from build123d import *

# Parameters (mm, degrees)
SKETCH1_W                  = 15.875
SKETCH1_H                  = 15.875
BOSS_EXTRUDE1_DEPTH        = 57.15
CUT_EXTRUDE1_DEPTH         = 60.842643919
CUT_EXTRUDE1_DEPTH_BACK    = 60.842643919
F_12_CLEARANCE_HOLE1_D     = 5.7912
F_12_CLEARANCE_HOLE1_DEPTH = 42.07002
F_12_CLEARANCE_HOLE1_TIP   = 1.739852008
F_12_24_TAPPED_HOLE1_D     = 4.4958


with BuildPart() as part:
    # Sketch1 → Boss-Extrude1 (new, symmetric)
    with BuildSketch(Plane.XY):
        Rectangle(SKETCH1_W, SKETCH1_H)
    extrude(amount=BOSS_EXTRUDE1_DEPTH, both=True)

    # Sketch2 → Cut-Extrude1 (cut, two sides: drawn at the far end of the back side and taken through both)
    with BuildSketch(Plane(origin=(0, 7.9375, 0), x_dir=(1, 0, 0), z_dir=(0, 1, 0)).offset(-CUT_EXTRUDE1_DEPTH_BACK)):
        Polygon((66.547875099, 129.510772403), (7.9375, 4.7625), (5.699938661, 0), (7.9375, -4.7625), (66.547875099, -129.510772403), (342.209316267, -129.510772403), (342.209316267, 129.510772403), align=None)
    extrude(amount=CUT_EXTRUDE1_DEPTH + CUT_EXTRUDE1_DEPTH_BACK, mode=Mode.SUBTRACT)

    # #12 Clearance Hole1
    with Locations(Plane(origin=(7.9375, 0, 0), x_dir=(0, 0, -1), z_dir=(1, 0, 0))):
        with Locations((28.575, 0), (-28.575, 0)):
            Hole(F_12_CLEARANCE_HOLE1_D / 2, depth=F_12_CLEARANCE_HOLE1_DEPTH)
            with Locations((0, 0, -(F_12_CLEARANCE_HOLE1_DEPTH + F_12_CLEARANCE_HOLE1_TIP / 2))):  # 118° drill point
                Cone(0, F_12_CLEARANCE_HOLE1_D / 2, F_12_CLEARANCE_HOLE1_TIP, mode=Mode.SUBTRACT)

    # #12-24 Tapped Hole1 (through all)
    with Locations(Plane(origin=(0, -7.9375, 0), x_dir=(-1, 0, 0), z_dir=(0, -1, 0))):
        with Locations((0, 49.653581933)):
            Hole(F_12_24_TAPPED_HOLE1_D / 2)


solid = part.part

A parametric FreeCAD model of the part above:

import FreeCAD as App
import Part
import Sketcher
Q = App.Units.Quantity

doc = App.newDocument("Part")
body = doc.addObject("PartDesign::Body", "Body")

# Sketch on XY plane
sketch1 = body.newObject("Sketcher::SketchObject", "Sketch")
sketch1.AttachmentSupport = (doc.getObject("XY_Plane"), [""])
sketch1.MapMode = "FlatFace"
sketch1.addGeometry([
    Part.LineSegment(App.Vector(-8, 8, 0), App.Vector(-8, -8, 0)),
    Part.LineSegment(App.Vector(-8, -8, 0), App.Vector(8, -8, 0)),
    Part.LineSegment(App.Vector(8, -8, 0), App.Vector(8, 8, 0)),
    Part.LineSegment(App.Vector(8, 8, 0), App.Vector(-8, 8, 0)),
], False)
sketch1.addConstraint([
    Sketcher.Constraint("Coincident", 0, 2, 1, 1),
    Sketcher.Constraint("Coincident", 1, 2, 2, 1),
    Sketcher.Constraint("Coincident", 2, 2, 3, 1),
    Sketcher.Constraint("Coincident", 3, 2, 0, 1),
    Sketcher.Constraint("Vertical", 0),
    Sketcher.Constraint("Horizontal", 1),
    Sketcher.Constraint("Vertical", 2),
    Sketcher.Constraint("Horizontal", 3),
    Sketcher.Constraint("Symmetric", 0, 2, 2, 2, -1, 1),
    Sketcher.Constraint("Equal", 3, 0),
    Sketcher.Constraint("DistanceX", 1, 1, 1, 2, Q("0.625 in")),
])
pad1 = body.newObject("PartDesign::Pad", "Pad")
pad1.Profile = sketch1
pad1.Length = Q("4.5 in")
pad1.Midplane = True

# Sketch on XZ plane
sketch2 = body.newObject("Sketcher::SketchObject", "Sketch001")
sketch2.AttachmentSupport = (doc.getObject("XZ_Plane"), [""])
sketch2.MapMode = "FlatFace"
sketch2.AttachmentOffset = App.Placement(App.Vector(0, 0, -0.3125 * 25.4), App.Rotation())
sketch2.addGeometry([
    Part.LineSegment(App.Vector(67, -130, 0), App.Vector(8, -5, 0)),  # 0
    Part.LineSegment(App.Vector(8, -5, 0), App.Vector(6, 0, 0)),  # 1
    Part.LineSegment(App.Vector(6, 0, 0), App.Vector(8, 5, 0)),  # 2
    Part.LineSegment(App.Vector(8, 5, 0), App.Vector(67, 130, 0)),  # 3
    Part.LineSegment(App.Vector(67, 130, 0), App.Vector(342, 130, 0)),  # 4
    Part.LineSegment(App.Vector(342, 130, 0), App.Vector(342, -130, 0)),  # 5
    Part.LineSegment(App.Vector(342, -130, 0), App.Vector(67, -130, 0)),  # 6
], False)
sketch2.addConstraint([
    Sketcher.Constraint("Coincident", 0, 2, 1, 1),
    Sketcher.Constraint("Coincident", 1, 2, 2, 1),
    Sketcher.Constraint("Coincident", 2, 2, 3, 1),
    Sketcher.Constraint("Coincident", 3, 2, 4, 1),
    Sketcher.Constraint("Coincident", 4, 2, 5, 1),
    Sketcher.Constraint("Coincident", 5, 2, 6, 1),
    Sketcher.Constraint("Coincident", 6, 2, 0, 1),
    Sketcher.Constraint("Horizontal", 4),
    Sketcher.Constraint("Vertical", 5),
    Sketcher.Constraint("Horizontal", 6),
    Sketcher.Constraint("Symmetric", 0, 2, 2, 2, -1),
    Sketcher.Constraint("Symmetric", 3, 2, 6, 2, -1),
    Sketcher.Constraint("PointOnObject", 1, 2, -1),
    Sketcher.Constraint("Parallel", 0, 1),
    Sketcher.Constraint("DistanceX", -1, 1, 0, 2, Q("0.3125 in")),
    Sketcher.Constraint("DistanceY", 0, 2, -1, 1, Q("0.1875 in")),
    Sketcher.Constraint("DistanceX", 4, 1, 4, 2, 275.661441),
    Sketcher.Constraint("Distance", 0, 137.830721),
    Sketcher.Constraint("DistanceY", 5, 2, 5, 1, 259.021545),
])
pocket1 = body.newObject("PartDesign::Pocket", "Pocket")
pocket1.Profile = sketch2
pocket1.Type = "ThroughAll"
pocket1.Midplane = True

# Sketch on YZ plane
sketch3 = body.newObject("Sketcher::SketchObject", "Sketch002")
sketch3.AttachmentSupport = (doc.getObject("YZ_Plane"), [""])
sketch3.MapMode = "FlatFace"
sketch3.AttachmentOffset = App.Placement(App.Vector(0, 0, 0.3125 * 25.4), App.Rotation())
sketch3.addGeometry([
    Part.Circle(App.Vector(0, -28.6, 0), App.Vector(0, 0, 1), 2.9),
    Part.Circle(App.Vector(0, 28.6, 0), App.Vector(0, 0, 1), 2.9),
], False)
sketch3.addConstraint([
    Sketcher.Constraint("Equal", 0, 1),
    Sketcher.Constraint("Symmetric", 0, 3, 1, 3, -1, 1),
    Sketcher.Constraint("PointOnObject", 0, 3, -2),
    Sketcher.Constraint("Diameter", 0, Q("0.228 in")),
    Sketcher.Constraint("DistanceY", 0, 3, 1, 3, Q("2.25 in")),
])
doc.recompute()
hole = body.newObject("PartDesign::Hole", "Hole")
hole.Profile = sketch3
hole.ThreadType = "None"
hole.Diameter = Q("0.228 in")
hole.DepthType = "Dimension"
hole.Depth = Q("1.6563 in")
hole.DrillPoint = "Angled"
hole.DrillPointAngle = 118

# Sketch on XZ plane
sketch4 = body.newObject("Sketcher::SketchObject", "Sketch003")
sketch4.AttachmentSupport = (doc.getObject("XZ_Plane"), [""])
sketch4.MapMode = "FlatFace"
sketch4.AttachmentOffset = App.Placement(App.Vector(0, 0, 0.3125 * 25.4), App.Rotation())
sketch4.addGeometry(Part.Circle(App.Vector(0, -49.7, 0), App.Vector(0, 0, 1), 2.2), False)
sketch4.addConstraint([
    Sketcher.Constraint("PointOnObject", 0, 3, -2),
    Sketcher.Constraint("Diameter", 0, Q("0.177 in")),
    Sketcher.Constraint("DistanceY", 0, 3, -1, 1, 49.653582),
])
doc.recompute()
hole2 = body.newObject("PartDesign::Hole", "Hole001")
hole2.Profile = sketch4
hole2.ThreadType = "None"
hole2.Diameter = Q("0.177 in")
hole2.DepthType = "ThroughAll"

doc.recompute()
